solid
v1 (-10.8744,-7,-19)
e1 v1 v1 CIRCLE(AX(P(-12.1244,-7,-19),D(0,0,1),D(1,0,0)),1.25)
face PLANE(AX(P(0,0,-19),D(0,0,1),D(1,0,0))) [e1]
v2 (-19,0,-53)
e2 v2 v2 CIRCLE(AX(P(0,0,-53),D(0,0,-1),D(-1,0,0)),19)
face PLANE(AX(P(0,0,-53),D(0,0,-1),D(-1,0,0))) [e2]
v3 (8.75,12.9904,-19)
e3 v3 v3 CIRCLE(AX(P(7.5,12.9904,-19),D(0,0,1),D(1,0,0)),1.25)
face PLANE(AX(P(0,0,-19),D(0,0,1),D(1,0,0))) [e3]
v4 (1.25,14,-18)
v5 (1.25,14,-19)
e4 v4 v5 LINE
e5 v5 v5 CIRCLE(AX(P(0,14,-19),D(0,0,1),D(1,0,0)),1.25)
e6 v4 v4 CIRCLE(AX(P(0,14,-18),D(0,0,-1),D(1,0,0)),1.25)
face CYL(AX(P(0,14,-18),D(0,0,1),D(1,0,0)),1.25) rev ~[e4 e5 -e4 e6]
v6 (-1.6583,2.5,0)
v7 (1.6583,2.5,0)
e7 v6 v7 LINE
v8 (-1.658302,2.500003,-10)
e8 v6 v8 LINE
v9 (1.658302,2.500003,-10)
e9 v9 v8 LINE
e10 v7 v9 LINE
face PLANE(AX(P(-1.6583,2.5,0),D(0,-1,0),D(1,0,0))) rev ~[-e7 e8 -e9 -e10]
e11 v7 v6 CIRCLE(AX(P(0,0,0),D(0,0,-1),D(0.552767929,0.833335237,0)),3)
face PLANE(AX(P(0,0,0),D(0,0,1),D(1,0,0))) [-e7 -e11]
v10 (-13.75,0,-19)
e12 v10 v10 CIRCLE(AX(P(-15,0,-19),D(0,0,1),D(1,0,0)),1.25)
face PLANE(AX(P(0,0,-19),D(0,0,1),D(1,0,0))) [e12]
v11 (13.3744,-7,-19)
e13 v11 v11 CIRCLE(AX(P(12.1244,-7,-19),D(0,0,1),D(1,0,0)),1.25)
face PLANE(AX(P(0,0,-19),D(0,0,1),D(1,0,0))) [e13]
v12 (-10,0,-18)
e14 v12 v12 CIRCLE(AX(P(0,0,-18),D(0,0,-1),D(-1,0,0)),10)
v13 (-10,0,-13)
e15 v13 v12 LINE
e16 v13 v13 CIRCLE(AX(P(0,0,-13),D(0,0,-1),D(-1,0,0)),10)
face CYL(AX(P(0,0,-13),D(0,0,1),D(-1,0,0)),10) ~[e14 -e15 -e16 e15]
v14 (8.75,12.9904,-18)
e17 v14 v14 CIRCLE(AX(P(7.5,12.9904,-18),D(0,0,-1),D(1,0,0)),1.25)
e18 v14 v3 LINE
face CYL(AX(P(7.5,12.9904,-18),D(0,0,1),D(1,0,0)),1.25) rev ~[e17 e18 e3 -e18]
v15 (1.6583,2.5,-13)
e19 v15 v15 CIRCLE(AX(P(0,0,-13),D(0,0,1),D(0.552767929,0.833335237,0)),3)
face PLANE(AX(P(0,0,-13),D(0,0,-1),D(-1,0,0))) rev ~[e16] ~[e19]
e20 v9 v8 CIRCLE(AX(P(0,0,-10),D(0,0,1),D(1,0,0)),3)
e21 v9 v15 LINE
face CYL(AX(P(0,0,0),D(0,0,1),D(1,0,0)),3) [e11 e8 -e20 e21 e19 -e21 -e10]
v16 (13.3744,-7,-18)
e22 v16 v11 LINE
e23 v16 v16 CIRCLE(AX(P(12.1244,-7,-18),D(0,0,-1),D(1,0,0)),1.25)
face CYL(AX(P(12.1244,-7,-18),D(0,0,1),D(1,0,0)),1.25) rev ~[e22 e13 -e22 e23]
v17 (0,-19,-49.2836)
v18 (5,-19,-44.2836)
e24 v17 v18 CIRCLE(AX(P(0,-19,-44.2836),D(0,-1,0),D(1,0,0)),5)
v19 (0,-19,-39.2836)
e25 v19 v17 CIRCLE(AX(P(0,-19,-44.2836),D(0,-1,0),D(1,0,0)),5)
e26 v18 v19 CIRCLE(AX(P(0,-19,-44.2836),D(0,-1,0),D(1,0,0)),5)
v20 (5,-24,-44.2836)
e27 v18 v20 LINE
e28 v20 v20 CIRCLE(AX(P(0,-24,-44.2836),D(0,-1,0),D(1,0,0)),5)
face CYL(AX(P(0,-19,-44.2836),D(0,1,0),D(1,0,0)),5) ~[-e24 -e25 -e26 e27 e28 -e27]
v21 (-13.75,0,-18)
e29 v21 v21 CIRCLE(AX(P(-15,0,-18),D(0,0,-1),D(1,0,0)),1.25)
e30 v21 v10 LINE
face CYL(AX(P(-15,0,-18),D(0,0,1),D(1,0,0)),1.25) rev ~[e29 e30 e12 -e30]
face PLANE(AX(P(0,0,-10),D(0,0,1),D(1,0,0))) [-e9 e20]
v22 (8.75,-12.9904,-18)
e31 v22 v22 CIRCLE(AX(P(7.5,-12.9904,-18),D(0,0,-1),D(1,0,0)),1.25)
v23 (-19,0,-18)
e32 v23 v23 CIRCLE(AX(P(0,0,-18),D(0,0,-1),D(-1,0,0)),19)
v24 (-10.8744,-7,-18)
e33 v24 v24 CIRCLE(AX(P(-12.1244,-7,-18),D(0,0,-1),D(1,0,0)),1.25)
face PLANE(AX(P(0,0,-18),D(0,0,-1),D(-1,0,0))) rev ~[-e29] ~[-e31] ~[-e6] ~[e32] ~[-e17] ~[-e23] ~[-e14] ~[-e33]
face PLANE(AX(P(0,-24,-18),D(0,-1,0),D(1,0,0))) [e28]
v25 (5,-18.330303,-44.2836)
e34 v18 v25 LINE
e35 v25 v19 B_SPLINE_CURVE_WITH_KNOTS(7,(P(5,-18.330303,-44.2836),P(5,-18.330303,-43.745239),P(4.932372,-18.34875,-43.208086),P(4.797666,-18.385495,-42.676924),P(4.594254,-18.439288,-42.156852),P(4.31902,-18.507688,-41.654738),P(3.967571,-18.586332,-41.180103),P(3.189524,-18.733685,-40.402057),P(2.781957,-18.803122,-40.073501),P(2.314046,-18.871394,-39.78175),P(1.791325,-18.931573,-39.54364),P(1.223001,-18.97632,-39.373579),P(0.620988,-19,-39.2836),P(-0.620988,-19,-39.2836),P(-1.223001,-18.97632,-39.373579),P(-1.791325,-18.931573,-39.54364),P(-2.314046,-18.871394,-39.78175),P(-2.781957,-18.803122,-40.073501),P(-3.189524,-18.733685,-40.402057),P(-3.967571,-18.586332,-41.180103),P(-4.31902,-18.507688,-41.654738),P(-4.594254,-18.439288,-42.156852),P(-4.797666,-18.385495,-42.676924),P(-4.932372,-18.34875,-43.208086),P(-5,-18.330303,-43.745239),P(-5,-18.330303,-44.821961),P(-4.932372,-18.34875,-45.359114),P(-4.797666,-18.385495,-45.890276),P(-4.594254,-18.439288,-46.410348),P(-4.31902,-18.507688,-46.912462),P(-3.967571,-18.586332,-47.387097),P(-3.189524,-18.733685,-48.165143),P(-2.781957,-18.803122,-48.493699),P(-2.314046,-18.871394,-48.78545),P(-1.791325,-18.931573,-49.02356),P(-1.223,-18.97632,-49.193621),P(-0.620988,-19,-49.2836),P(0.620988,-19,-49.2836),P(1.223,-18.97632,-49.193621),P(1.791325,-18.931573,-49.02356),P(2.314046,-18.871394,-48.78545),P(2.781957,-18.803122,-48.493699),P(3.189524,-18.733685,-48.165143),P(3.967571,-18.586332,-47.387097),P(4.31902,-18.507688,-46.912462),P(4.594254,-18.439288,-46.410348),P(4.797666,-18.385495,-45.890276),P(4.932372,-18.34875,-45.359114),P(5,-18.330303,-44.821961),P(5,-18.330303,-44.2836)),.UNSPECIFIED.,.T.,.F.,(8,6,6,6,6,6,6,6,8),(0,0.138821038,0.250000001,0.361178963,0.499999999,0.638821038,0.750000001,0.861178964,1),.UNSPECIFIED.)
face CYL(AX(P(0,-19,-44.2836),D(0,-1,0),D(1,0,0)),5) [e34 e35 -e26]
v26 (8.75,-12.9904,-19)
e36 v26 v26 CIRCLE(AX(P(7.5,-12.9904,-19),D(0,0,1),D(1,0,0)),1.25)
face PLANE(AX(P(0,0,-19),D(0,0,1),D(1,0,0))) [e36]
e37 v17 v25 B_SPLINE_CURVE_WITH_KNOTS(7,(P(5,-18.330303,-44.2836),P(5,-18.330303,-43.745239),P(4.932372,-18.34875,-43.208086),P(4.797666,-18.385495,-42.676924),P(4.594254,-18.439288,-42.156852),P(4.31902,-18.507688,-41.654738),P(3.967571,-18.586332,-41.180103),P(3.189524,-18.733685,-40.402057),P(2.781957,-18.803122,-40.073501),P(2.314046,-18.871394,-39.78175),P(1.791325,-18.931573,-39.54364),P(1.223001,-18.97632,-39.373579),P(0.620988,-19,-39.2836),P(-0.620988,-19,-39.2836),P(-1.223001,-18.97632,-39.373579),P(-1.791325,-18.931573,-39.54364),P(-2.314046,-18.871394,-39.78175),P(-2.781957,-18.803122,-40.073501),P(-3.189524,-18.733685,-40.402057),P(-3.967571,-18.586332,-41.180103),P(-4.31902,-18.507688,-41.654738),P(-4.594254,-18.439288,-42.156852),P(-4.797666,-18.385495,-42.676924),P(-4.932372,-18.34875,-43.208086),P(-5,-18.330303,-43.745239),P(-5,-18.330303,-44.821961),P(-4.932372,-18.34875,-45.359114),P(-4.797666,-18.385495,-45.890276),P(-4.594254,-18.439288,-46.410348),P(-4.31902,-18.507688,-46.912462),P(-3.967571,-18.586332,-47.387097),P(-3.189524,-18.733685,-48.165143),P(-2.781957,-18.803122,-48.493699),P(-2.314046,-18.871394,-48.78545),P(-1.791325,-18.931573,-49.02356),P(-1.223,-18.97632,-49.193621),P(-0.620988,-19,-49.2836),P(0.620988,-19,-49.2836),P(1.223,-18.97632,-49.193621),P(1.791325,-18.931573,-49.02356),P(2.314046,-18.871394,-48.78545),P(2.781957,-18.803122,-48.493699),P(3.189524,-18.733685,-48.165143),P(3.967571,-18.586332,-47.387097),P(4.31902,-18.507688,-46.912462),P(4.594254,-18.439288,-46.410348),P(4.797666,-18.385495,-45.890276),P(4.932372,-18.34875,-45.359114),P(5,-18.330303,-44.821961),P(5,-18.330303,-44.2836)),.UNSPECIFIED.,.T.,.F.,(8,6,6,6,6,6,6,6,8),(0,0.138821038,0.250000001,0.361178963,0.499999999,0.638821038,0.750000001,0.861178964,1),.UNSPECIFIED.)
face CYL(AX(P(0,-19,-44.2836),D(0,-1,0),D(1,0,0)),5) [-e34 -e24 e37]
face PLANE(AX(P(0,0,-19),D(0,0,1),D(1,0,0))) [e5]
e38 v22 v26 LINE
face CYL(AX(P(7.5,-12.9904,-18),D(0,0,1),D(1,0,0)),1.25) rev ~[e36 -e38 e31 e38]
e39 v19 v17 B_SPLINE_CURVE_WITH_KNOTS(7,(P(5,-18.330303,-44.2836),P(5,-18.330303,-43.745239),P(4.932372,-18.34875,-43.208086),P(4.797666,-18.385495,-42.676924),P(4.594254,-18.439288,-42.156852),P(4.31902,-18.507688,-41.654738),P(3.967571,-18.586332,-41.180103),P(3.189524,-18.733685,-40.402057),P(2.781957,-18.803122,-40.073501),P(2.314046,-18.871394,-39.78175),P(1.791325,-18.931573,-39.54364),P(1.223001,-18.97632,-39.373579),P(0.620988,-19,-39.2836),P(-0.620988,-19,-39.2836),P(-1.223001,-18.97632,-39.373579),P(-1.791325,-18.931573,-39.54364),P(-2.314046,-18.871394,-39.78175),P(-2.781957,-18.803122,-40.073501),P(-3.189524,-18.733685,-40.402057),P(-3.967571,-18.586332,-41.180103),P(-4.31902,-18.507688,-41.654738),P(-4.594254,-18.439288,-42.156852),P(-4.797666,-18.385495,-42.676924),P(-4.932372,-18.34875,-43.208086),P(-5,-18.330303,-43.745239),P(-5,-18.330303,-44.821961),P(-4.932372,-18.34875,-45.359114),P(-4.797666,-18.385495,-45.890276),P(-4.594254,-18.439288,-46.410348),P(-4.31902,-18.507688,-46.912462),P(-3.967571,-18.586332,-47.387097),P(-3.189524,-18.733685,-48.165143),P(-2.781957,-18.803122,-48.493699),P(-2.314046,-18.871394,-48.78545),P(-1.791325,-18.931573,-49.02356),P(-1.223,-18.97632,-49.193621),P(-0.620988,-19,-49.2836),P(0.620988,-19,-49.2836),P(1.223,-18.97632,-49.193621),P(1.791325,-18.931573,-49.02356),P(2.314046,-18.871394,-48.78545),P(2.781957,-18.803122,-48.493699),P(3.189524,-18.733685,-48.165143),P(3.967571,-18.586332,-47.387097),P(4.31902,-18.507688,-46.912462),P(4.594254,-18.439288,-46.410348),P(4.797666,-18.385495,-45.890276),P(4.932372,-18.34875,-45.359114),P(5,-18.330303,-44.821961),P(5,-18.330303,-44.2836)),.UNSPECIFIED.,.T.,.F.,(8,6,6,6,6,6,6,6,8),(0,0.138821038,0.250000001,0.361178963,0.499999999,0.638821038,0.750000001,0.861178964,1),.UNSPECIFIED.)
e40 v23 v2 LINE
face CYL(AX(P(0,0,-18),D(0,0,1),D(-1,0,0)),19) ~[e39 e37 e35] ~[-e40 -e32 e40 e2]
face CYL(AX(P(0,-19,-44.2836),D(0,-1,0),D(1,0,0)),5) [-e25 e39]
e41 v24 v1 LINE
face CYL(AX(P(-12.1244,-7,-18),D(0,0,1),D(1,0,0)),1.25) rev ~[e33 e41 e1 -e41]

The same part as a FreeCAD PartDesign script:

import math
import FreeCAD as App
import Part
import Sketcher

V = App.Vector
Q = App.Units.Quantity

doc = App.newDocument("Part")
body = doc.addObject("PartDesign::Body", "Body")

# Sketch on XY plane
sketch1 = doc.addObject("Sketcher::SketchObject", "Sketch")
body.addObject(sketch1)
sketch1.AttachmentSupport = (doc.XY_Plane, [""])
sketch1.MapMode = "FlatFace"
sketch1.addGeometry([
    Part.ArcOfCircle(Part.Circle(V(0, 0, 0), V(0, 0, 1), 3), math.radians(123.557112), math.radians(416.442888)),
    Part.LineSegment(V(-1.6583, 2.5, 0), V(1.6583, 2.5, 0)),
], False)
sketch1.addConstraint([
    Sketcher.Constraint("Coincident", 0, 1, 1, 1),
    Sketcher.Constraint("Coincident", 1, 2, 0, 2),
    Sketcher.Constraint("Horizontal", 1),
    Sketcher.Constraint("Coincident", 0, 3, -1, 1),
    Sketcher.Constraint("Radius", 0, Q("3 mm")),
    Sketcher.Constraint("DistanceY", -1, 1, 0, 1, Q("2.5 mm")),
])
pad1 = doc.addObject("PartDesign::Pad", "Pad")
body.addObject(pad1)
pad1.Profile = sketch1
pad1.Length = 13
pad1.Reversed = True

# Sketch on XY plane
sketch2 = doc.addObject("Sketcher::SketchObject", "Sketch001")
body.addObject(sketch2)
sketch2.AttachmentSupport = (doc.XY_Plane, [""])
sketch2.MapMode = "FlatFace"
sketch2.AttachmentOffset = App.Placement(V(0, 0, -13), App.Rotation())
sketch2.addGeometry(Part.Circle(V(0, 0, 0), V(0, 0, 1), 10), False)
sketch2.addConstraint([
    Sketcher.Constraint("Coincident", 0, 3, -1, 1),
    Sketcher.Constraint("Diameter", 0, Q("20 mm")),
])
pad2 = doc.addObject("PartDesign::Pad", "Pad001")
body.addObject(pad2)
pad2.Profile = sketch2
pad2.Length = 5
pad2.Reversed = True

# Sketch on XY plane
sketch3 = doc.addObject("Sketcher::SketchObject", "Sketch002")
body.addObject(sketch3)
sketch3.AttachmentSupport = (doc.XY_Plane, [""])
sketch3.MapMode = "FlatFace"
sketch3.AttachmentOffset = App.Placement(V(0, 0, -18), App.Rotation())
sketch3.addGeometry(Part.Circle(V(0, 0, 0), V(0, 0, 1), 19), False)
sketch3.addConstraint([
    Sketcher.Constraint("Coincident", 0, 3, -1, 1),
    Sketcher.Constraint("Diameter", 0, Q("38 mm")),
])
pad3 = doc.addObject("PartDesign::Pad", "Pad002")
body.addObject(pad3)
pad3.Profile = sketch3
pad3.Length = 35
pad3.Reversed = True

# Sketch on XY plane
sketch4 = doc.addObject("Sketcher::SketchObject", "Sketch003")
body.addObject(sketch4)
sketch4.AttachmentSupport = (doc.XY_Plane, [""])
sketch4.MapMode = "FlatFace"
sketch4.AttachmentOffset = App.Placement(V(0, 0, -18), App.Rotation())
sketch4.addGeometry([
    Part.Circle(V(7.5, 12.9904, 0), V(0, 0, 1), 1.25),  # 0
    Part.Circle(V(12.1244, -7, 0), V(0, 0, 1), 1.25),  # 1
    Part.Circle(V(0, 14, 0), V(0, 0, 1), 1.25),  # 2
    Part.Circle(V(7.5, -12.9904, 0), V(0, 0, 1), 1.25),  # 3
    Part.Circle(V(-15, 0, 0), V(0, 0, 1), 1.25),  # 4
    Part.Circle(V(-12.1244, -7, 0), V(0, 0, 1), 1.25),  # 5
], False)
sketch4.addConstraint([
    Sketcher.Constraint("Equal", 0, 1),
    Sketcher.Constraint("Equal", 1, 2),
    Sketcher.Constraint("Equal", 2, 3),
    Sketcher.Constraint("Equal", 3, 4),
    Sketcher.Constraint("Equal", 4, 5),
    Sketcher.Constraint("Symmetric", 1, 3, 5, 3, -2),
    Sketcher.Constraint("Symmetric", 0, 3, 3, 3, -1),
    Sketcher.Constraint("PointOnObject", 2, 3, -2),
    Sketcher.Constraint("PointOnObject", 4, 3, -1),
    Sketcher.Constraint("Diameter", 0, Q("2.5 mm")),
    Sketcher.Constraint("DistanceY", 1, 3, -1, 1, Q("7 mm")),
    Sketcher.Constraint("DistanceY", -1, 1, 2, 3, Q("14 mm")),
    Sketcher.Constraint("DistanceX", 4, 3, -1, 1, Q("15 mm")),
    Sketcher.Constraint("DistanceX", -1, 1, 0, 3, Q("7.5 mm")),
    Sketcher.Constraint("DistanceY", -1, 1, 0, 3, Q("12.9904 mm")),
    Sketcher.Constraint("DistanceX", -1, 1, 1, 3, Q("12.1244 mm")),
])
pocket1 = doc.addObject("PartDesign::Pocket", "Pocket")
body.addObject(pocket1)
pocket1.Profile = sketch4
pocket1.Length = 1

# Sketch on XZ plane
sketch5 = doc.addObject("Sketcher::SketchObject", "Sketch004")
body.addObject(sketch5)
sketch5.AttachmentSupport = (doc.XZ_Plane, [""])
sketch5.MapMode = "FlatFace"
sketch5.AttachmentOffset = App.Placement(V(0, 0, 19), App.Rotation())
sketch5.addGeometry(Part.Circle(V(0, -44.2836, 0), V(0, 0, 1), 5), False)
sketch5.addConstraint([
    Sketcher.Constraint("PointOnObject", 0, 3, -2),
    Sketcher.Constraint("Diameter", 0, Q("10 mm")),
    Sketcher.Constraint("DistanceY", 0, 3, -1, 1, Q("44.2836 mm")),
])
pad4 = doc.addObject("PartDesign::Pad", "Pad003")
body.addObject(pad4)
pad4.Profile = sketch5
pad4.Type = "TwoLengths"
pad4.Length = 5
pad4.Length2 = 0.7

# Sketch on XY plane
sketch6 = doc.addObject("Sketcher::SketchObject", "Sketch005")
body.addObject(sketch6)
sketch6.AttachmentSupport = (doc.XY_Plane, [""])
sketch6.MapMode = "FlatFace"
sketch6.AttachmentOffset = App.Placement(V(0, 0, -13), App.Rotation())
sketch6.addGeometry(Part.Circle(V(0, 0, 0), V(0, 0, 1), 3), False)
sketch6.addConstraint([
    Sketcher.Constraint("Coincident", 0, 3, -1, 1),
    Sketcher.Constraint("Diameter", 0, Q("6 mm")),
])
pad5 = doc.addObject("PartDesign::Pad", "Pad004")
body.addObject(pad5)
pad5.Profile = sketch6
pad5.Length = 3

doc.recompute()
